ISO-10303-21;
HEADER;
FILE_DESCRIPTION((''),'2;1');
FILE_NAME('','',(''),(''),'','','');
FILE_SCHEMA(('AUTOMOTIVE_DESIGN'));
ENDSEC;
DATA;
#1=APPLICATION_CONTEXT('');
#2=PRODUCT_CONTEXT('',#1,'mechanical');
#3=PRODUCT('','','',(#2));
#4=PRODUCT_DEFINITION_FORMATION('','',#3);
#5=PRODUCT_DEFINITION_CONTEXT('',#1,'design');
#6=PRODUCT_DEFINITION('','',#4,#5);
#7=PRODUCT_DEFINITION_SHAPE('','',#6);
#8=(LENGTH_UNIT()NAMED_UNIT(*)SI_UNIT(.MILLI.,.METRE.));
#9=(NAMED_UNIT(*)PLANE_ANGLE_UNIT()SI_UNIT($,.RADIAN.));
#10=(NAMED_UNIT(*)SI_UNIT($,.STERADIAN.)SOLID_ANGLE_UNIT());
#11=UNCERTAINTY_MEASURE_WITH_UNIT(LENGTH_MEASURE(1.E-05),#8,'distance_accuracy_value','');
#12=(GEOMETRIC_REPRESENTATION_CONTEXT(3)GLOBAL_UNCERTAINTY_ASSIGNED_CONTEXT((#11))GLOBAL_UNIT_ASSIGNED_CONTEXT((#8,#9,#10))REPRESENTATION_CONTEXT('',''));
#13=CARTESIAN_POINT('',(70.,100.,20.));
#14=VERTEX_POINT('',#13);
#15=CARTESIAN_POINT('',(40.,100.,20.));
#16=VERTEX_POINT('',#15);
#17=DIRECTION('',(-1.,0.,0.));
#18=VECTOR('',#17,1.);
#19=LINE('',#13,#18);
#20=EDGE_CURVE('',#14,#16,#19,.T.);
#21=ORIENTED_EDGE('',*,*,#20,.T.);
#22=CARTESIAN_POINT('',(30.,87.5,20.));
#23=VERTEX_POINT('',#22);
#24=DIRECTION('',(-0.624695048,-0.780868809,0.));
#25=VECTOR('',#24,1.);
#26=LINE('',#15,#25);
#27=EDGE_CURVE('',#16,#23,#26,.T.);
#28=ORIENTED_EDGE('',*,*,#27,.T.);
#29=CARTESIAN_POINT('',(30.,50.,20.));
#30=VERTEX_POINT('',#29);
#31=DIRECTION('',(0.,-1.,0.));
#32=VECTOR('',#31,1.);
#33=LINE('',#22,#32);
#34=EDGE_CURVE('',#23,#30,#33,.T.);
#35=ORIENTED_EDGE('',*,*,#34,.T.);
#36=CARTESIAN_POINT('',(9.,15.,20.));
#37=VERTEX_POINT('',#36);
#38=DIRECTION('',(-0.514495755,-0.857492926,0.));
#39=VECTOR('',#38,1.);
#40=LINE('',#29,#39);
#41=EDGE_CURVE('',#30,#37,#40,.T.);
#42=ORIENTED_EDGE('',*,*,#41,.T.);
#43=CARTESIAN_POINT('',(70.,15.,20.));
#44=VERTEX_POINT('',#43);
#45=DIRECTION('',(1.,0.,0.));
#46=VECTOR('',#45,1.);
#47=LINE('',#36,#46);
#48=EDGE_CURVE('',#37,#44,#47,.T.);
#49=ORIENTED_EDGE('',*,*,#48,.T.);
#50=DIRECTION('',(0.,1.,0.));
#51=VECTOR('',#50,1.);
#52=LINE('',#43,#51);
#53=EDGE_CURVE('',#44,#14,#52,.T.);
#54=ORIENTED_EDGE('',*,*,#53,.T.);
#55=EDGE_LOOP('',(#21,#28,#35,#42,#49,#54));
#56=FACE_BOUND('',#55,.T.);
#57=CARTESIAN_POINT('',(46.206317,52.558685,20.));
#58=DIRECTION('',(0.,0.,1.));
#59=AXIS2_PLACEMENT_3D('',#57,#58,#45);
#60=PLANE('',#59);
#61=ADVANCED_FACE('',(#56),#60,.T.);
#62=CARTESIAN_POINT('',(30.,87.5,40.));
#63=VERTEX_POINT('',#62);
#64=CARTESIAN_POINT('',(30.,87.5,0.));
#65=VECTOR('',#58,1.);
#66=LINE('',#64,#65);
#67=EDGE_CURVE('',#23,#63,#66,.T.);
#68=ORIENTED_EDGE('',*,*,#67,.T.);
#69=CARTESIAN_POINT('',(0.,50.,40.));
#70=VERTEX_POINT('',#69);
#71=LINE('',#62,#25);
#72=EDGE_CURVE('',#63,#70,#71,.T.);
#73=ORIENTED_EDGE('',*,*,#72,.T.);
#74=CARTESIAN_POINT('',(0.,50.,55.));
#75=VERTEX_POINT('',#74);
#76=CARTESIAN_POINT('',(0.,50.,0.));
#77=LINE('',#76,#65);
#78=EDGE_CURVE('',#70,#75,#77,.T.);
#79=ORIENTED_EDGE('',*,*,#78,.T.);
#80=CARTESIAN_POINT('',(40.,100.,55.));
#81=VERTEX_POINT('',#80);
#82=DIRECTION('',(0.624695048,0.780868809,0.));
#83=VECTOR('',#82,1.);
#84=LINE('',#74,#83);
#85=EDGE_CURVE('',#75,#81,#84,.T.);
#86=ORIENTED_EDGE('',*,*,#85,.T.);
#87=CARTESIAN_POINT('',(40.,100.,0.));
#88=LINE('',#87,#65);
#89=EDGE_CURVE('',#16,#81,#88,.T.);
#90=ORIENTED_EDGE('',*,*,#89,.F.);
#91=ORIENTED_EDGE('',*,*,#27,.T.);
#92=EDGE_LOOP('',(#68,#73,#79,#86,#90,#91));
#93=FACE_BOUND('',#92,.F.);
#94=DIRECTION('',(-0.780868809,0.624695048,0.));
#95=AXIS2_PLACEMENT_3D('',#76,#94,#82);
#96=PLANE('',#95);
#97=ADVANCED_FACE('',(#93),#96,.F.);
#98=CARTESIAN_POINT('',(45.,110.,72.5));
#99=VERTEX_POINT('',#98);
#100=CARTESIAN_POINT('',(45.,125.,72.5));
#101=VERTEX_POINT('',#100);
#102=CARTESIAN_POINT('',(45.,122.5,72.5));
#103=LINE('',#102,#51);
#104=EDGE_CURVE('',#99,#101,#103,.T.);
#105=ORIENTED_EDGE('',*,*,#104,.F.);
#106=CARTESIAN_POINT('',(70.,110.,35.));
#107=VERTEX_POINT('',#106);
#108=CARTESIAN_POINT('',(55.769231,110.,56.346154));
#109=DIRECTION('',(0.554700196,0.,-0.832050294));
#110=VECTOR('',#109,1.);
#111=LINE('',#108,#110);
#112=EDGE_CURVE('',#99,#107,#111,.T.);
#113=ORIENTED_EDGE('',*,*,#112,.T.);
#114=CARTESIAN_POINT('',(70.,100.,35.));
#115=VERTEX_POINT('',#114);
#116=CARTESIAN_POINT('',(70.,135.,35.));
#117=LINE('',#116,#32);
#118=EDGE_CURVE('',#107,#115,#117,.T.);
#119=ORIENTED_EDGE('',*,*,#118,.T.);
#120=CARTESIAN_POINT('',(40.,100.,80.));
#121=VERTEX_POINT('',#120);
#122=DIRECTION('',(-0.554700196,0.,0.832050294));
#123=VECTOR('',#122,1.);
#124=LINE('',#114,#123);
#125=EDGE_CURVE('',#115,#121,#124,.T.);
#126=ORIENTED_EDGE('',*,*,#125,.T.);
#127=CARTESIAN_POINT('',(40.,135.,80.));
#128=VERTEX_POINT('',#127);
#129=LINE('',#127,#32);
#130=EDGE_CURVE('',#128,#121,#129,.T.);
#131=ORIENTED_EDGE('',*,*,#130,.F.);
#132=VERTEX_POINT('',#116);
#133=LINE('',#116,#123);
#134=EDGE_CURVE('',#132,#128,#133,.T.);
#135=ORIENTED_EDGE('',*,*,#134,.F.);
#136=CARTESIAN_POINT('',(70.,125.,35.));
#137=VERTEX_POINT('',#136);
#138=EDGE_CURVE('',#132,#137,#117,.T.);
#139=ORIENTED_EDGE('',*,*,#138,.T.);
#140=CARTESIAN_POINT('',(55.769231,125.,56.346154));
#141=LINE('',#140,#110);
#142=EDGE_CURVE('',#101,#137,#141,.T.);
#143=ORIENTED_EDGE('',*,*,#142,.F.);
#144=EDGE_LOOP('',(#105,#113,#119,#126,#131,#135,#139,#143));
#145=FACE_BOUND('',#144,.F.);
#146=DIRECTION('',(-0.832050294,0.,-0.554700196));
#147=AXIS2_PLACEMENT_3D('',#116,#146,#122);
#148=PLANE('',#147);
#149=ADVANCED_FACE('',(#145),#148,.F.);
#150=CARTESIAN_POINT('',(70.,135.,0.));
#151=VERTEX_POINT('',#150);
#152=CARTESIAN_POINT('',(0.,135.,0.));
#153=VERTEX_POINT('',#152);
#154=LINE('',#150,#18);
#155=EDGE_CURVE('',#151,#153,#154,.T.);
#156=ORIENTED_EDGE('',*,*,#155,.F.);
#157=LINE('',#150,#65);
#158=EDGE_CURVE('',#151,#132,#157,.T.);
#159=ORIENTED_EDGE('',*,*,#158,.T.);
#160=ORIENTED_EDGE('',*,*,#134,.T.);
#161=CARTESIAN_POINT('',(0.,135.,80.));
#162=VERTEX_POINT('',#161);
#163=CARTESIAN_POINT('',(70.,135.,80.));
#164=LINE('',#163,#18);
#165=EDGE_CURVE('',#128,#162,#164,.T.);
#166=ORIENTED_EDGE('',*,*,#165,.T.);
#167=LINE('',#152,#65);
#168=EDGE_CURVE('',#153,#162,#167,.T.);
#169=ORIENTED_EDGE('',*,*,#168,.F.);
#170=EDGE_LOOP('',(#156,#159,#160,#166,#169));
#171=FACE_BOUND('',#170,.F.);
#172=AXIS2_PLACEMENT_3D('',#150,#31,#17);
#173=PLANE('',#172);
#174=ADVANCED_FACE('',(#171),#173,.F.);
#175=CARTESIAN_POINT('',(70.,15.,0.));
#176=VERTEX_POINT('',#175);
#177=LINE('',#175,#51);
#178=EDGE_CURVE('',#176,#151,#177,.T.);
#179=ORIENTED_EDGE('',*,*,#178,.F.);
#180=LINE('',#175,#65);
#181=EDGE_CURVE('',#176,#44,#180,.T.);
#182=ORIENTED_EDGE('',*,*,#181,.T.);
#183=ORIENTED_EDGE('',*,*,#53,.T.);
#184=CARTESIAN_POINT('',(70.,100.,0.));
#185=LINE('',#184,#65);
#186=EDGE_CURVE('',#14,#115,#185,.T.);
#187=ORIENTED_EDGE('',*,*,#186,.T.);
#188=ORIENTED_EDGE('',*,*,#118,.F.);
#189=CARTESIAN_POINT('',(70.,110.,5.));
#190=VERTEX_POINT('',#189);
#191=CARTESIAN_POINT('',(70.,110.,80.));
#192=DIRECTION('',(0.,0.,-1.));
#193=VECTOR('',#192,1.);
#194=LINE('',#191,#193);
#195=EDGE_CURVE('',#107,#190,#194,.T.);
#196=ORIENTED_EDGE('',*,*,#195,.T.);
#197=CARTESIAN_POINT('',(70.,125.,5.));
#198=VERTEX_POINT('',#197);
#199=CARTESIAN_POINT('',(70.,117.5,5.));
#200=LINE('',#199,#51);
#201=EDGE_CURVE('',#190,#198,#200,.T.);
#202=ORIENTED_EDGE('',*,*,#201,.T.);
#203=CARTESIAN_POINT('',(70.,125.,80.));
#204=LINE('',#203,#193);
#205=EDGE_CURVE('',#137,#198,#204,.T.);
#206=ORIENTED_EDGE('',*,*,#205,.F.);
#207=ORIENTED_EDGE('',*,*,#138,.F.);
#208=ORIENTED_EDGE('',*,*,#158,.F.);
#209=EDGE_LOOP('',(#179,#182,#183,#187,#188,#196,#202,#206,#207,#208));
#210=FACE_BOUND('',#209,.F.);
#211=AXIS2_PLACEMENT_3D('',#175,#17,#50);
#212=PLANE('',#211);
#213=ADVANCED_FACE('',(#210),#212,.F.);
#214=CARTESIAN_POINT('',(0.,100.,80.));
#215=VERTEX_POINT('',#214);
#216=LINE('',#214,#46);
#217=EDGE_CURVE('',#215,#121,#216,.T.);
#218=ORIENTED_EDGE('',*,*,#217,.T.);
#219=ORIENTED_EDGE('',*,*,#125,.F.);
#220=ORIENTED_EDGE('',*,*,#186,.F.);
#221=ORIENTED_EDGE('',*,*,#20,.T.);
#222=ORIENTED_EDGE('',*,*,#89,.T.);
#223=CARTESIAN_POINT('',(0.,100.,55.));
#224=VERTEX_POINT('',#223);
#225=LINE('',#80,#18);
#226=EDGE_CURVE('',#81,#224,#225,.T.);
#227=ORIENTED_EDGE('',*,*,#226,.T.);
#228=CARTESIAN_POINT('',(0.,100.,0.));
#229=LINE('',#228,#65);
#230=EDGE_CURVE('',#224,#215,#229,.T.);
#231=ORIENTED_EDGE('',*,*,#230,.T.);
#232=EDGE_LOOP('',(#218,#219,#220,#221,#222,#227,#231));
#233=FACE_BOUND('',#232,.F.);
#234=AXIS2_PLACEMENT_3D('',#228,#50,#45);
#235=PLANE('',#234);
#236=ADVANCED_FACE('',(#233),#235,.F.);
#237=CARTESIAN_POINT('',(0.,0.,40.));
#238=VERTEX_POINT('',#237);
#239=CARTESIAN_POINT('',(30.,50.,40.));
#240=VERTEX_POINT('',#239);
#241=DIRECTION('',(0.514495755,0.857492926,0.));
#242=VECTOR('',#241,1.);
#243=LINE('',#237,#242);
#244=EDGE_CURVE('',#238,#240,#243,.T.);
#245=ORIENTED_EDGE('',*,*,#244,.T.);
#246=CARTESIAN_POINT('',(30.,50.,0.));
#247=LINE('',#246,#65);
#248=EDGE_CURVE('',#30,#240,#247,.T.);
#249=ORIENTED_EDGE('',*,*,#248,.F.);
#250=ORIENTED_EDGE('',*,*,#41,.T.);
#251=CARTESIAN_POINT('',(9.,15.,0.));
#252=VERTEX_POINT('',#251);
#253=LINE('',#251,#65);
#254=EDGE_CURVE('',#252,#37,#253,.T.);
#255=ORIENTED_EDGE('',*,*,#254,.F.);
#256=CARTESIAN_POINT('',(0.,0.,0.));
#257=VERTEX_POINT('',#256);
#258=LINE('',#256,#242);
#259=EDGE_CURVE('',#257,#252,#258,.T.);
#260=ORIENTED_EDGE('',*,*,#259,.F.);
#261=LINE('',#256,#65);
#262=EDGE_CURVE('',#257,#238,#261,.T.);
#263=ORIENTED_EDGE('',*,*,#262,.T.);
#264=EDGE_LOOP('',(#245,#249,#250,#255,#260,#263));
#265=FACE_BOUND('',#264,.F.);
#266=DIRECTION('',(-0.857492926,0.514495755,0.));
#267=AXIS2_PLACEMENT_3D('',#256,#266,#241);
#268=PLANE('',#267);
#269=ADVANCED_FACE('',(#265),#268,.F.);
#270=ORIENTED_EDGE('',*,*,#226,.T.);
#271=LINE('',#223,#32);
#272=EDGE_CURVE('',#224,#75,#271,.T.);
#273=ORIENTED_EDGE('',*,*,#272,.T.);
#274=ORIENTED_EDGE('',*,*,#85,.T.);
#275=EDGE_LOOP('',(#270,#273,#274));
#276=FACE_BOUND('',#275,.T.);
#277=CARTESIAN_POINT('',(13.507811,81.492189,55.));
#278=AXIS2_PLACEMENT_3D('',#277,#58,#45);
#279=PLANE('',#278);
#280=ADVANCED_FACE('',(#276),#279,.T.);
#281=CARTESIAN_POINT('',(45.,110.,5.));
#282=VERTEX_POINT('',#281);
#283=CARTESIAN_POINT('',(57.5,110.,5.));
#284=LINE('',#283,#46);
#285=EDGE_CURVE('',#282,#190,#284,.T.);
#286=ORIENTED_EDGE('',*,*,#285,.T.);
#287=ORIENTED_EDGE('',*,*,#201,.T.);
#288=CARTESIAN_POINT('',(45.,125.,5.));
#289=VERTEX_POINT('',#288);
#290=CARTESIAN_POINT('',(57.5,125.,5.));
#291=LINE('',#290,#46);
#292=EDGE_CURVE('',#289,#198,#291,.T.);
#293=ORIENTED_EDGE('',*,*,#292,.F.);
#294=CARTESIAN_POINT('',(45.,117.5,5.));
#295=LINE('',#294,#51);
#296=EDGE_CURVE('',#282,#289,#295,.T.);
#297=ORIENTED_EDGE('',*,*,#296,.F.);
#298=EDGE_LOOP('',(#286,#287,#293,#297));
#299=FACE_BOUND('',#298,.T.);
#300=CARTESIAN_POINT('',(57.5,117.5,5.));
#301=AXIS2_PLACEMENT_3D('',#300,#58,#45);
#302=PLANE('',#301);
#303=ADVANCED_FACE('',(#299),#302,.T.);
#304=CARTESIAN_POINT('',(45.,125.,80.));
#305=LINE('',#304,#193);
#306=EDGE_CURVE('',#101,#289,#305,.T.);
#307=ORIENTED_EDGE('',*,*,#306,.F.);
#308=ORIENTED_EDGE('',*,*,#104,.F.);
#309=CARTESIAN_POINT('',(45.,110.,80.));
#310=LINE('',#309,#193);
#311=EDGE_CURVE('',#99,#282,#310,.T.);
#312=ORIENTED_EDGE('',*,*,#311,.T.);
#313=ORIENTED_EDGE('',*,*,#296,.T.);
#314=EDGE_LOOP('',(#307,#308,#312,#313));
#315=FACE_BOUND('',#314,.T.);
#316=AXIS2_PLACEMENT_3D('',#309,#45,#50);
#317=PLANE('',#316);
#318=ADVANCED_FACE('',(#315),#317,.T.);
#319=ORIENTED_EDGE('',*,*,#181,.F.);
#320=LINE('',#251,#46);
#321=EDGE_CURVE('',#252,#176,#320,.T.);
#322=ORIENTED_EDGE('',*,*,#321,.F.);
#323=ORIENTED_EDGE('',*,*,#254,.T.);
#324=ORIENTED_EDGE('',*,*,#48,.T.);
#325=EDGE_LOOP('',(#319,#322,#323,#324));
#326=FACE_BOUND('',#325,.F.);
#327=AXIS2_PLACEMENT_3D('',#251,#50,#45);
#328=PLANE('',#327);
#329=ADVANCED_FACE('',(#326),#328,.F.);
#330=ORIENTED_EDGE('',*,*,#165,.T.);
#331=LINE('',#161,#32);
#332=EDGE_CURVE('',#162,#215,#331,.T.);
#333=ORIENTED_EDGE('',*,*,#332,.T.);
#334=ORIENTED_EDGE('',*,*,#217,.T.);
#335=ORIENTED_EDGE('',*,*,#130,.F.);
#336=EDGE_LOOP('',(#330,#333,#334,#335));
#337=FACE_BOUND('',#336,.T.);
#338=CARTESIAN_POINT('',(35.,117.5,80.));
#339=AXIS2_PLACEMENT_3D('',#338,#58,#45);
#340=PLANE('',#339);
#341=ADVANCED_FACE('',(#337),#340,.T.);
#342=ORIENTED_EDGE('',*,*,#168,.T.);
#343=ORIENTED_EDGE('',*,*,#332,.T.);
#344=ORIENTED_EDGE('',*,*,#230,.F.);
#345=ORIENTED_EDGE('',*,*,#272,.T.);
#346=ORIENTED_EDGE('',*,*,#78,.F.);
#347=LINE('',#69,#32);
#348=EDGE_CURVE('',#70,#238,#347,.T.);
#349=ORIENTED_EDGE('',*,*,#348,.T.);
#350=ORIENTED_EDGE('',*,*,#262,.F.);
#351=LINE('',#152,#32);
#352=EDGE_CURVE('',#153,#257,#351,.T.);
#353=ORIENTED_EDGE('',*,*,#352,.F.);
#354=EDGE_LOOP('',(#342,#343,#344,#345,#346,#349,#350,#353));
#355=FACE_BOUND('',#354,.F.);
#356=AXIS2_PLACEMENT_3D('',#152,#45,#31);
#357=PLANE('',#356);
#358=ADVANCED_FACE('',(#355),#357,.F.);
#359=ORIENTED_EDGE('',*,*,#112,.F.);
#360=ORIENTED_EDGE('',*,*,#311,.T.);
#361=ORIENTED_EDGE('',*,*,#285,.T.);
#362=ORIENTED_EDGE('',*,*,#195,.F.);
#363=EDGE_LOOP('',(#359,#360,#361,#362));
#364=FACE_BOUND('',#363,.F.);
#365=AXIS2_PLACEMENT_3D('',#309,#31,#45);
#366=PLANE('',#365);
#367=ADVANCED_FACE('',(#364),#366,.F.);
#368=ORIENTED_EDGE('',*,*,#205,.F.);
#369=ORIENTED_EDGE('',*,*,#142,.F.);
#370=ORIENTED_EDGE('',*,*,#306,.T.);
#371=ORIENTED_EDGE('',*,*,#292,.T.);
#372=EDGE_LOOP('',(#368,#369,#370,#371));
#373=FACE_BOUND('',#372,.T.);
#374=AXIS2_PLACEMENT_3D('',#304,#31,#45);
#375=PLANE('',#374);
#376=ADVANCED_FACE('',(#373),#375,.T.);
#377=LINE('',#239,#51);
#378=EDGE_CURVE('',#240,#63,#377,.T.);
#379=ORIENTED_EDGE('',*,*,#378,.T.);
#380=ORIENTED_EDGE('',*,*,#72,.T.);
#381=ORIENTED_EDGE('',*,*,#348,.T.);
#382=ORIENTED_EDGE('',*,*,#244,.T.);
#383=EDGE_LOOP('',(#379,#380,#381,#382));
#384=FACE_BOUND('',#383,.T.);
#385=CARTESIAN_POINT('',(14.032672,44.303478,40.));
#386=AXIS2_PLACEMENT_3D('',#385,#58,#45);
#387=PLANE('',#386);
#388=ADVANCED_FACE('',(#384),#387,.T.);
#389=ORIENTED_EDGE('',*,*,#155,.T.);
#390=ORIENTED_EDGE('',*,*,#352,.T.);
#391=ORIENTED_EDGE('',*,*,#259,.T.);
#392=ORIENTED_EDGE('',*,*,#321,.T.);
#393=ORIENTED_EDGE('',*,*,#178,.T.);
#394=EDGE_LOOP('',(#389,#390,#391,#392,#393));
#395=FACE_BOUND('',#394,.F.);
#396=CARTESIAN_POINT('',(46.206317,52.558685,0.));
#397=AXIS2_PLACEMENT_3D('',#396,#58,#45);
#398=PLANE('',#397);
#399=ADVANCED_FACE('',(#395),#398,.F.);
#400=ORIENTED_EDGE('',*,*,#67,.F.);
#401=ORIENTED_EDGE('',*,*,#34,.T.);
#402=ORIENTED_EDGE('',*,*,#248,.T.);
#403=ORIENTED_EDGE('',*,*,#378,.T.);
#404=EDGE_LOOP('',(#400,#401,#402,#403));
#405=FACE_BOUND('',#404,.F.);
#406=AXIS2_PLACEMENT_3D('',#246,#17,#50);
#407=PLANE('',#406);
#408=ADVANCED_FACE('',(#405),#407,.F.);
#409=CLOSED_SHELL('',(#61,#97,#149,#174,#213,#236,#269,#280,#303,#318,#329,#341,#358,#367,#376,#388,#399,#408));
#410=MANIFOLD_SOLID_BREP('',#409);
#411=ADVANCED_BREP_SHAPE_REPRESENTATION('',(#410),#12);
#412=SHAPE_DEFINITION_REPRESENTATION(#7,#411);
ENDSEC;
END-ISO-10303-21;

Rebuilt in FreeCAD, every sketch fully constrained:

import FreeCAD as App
import Part
import Sketcher
from FreeCAD import Vector


def add_polygon(sketch, points):
    """Adds a closed chain of lines whose ends are joined by coincident constraints."""
    first, n = sketch.GeometryCount, len(points)
    for a, b in zip(points, points[1:] + points[:1]):
        sketch.addGeometry(Part.LineSegment(App.Vector(*a, 0), App.Vector(*b, 0)), False)
    for i in range(n):
        sketch.addConstraint(Sketcher.Constraint("Coincident", first + i, 2, first + (i + 1) % n, 1))

doc = App.newDocument("Part")
body = doc.addObject("PartDesign::Body", "Body")

sketch1 = body.newObject("Sketcher::SketchObject", "Sketch")
sketch1.AttachmentSupport = (doc.getObject("XY_Plane"), [""])
sketch1.MapMode = "FlatFace"
add_polygon(sketch1, [(0, 50), (0, 0), (30, 50), (30, 88)])
sketch1.addConstraint([
    Sketcher.Constraint("Vertical", 0),
    Sketcher.Constraint("Vertical", 2),
    Sketcher.Constraint("Coincident", 0, 2, -1, 1),
    Sketcher.Constraint("Horizontal", 1, 2, 3, 2),
    Sketcher.Constraint("DistanceY", 0, 2, 0, 1, 50.0),
    Sketcher.Constraint("DistanceY", 2, 1, 2, 2, 37.5),
    Sketcher.Constraint("DistanceX", -1, 1, 1, 2, 30.0),
])
pad1 = body.newObject("PartDesign::Pad", "Pad")
pad1.Profile = sketch1
pad1.Length = 40

sketch2 = body.newObject("Sketcher::SketchObject", "Sketch001")
sketch2.AttachmentSupport = (doc.getObject("XY_Plane"), [""])
sketch2.MapMode = "FlatFace"
add_polygon(sketch2, [(0, 100), (0, 50), (40, 100)])
sketch2.addConstraint([
    Sketcher.Constraint("Vertical", 0),
    Sketcher.Constraint("Horizontal", 2),
    Sketcher.Constraint("PointOnObject", 0, 2, -2),
    Sketcher.Constraint("DistanceX", 2, 2, 2, 1, 40.0),
    Sketcher.Constraint("DistanceY", 0, 2, 0, 1, 50.0),
    Sketcher.Constraint("DistanceY", -1, 1, 0, 2, 50.0),
])
pad2 = body.newObject("PartDesign::Pad", "Pad001")
pad2.Profile = sketch2
pad2.Length = 55

sketch3 = body.newObject("Sketcher::SketchObject", "Sketch002")
sketch3.AttachmentSupport = (doc.getObject("XY_Plane"), [""])
sketch3.MapMode = "FlatFace"
add_polygon(sketch3, [(0, 135), (0, 100), (70, 100), (70, 135)])
sketch3.addConstraint([
    Sketcher.Constraint("Vertical", 0),
    Sketcher.Constraint("Horizontal", 1),
    Sketcher.Constraint("Vertical", 2),
    Sketcher.Constraint("Horizontal", 3),
    Sketcher.Constraint("PointOnObject", 0, 2, -2),
    Sketcher.Constraint("DistanceX", 1, 1, 1, 2, 70.0),
    Sketcher.Constraint("DistanceY", 0, 2, 0, 1, 35.0),
    Sketcher.Constraint("DistanceY", -1, 1, 0, 2, 100.0),
])
pad3 = body.newObject("PartDesign::Pad", "Pad002")
pad3.Profile = sketch3
pad3.Length = 80

sketch4 = body.newObject("Sketcher::SketchObject", "Sketch003")
sketch4.AttachmentSupport = (doc.getObject("XY_Plane"), [""])
sketch4.MapMode = "FlatFace"
add_polygon(sketch4, [(30, 50), (9, 15), (70, 15), (70, 100), (40, 100), (30, 88)])
sketch4.addConstraint([
    Sketcher.Constraint("Horizontal", 1),
    Sketcher.Constraint("Vertical", 2),
    Sketcher.Constraint("Horizontal", 3),
    Sketcher.Constraint("Vertical", 5),
    Sketcher.Constraint("DistanceX", 1, 1, 1, 2, 61.0),
    Sketcher.Constraint("DistanceX", 3, 2, 3, 1, 30.0),
    Sketcher.Constraint("DistanceY", 2, 1, 2, 2, 85.0),
    Sketcher.Constraint("DistanceY", 5, 2, 5, 1, 37.5),
    Sketcher.Constraint("DistanceX", -1, 1, 0, 2, 9.0),
    Sketcher.Constraint("DistanceY", -1, 1, 0, 2, 15.0),
    Sketcher.Constraint("DistanceX", -1, 1, 4, 2, 30.0),
    Sketcher.Constraint("DistanceY", -1, 1, 5, 2, 50.0),
])
pad4 = body.newObject("PartDesign::Pad", "Pad003")
pad4.Profile = sketch4
pad4.Length = 20

sketch5 = body.newObject("Sketcher::SketchObject", "Sketch004")
sketch5.AttachmentSupport = (doc.getObject("XY_Plane"), [""])
sketch5.MapMode = "FlatFace"
sketch5.AttachmentOffset = App.Placement(Vector(0, 0, 80), App.Rotation())
add_polygon(sketch5, [(45, 125), (45, 110), (70, 110), (70, 125)])
sketch5.addConstraint([
    Sketcher.Constraint("Vertical", 0),
    Sketcher.Constraint("Horizontal", 1),
    Sketcher.Constraint("Vertical", 2),
    Sketcher.Constraint("Horizontal", 3),
    Sketcher.Constraint("DistanceX", 1, 1, 1, 2, 25.0),
    Sketcher.Constraint("DistanceY", 0, 2, 0, 1, 15.0),
    Sketcher.Constraint("DistanceX", -1, 1, 0, 2, 45.0),
    Sketcher.Constraint("DistanceY", -1, 1, 0, 2, 110.0),
])
pocket1 = body.newObject("PartDesign::Pocket", "Pocket")
pocket1.Profile = sketch5
pocket1.Length = 75

sketch6 = body.newObject("Sketcher::SketchObject", "Sketch005")
sketch6.AttachmentSupport = (doc.getObject("XZ_Plane"), [""])
sketch6.MapMode = "FlatFace"
sketch6.AttachmentOffset = App.Placement(Vector(0, 0, -135), App.Rotation())
add_polygon(sketch6, [(70, 80), (70, 35), (40, 80)])
sketch6.addConstraint([
    Sketcher.Constraint("Vertical", 0),
    Sketcher.Constraint("Horizontal", 2),
    Sketcher.Constraint("DistanceX", 2, 1, 2, 2, 30.0),
    Sketcher.Constraint("DistanceY", 0, 2, 0, 1, 45.0),
    Sketcher.Constraint("DistanceX", -1, 1, 0, 2, 70.0),
    Sketcher.Constraint("DistanceY", -1, 1, 0, 2, 35.0),
])
pocket2 = body.newObject("PartDesign::Pocket", "Pocket001")
pocket2.Profile = sketch6
pocket2.Type = "ThroughAll"
pocket2.Reversed = True

doc.recompute()
